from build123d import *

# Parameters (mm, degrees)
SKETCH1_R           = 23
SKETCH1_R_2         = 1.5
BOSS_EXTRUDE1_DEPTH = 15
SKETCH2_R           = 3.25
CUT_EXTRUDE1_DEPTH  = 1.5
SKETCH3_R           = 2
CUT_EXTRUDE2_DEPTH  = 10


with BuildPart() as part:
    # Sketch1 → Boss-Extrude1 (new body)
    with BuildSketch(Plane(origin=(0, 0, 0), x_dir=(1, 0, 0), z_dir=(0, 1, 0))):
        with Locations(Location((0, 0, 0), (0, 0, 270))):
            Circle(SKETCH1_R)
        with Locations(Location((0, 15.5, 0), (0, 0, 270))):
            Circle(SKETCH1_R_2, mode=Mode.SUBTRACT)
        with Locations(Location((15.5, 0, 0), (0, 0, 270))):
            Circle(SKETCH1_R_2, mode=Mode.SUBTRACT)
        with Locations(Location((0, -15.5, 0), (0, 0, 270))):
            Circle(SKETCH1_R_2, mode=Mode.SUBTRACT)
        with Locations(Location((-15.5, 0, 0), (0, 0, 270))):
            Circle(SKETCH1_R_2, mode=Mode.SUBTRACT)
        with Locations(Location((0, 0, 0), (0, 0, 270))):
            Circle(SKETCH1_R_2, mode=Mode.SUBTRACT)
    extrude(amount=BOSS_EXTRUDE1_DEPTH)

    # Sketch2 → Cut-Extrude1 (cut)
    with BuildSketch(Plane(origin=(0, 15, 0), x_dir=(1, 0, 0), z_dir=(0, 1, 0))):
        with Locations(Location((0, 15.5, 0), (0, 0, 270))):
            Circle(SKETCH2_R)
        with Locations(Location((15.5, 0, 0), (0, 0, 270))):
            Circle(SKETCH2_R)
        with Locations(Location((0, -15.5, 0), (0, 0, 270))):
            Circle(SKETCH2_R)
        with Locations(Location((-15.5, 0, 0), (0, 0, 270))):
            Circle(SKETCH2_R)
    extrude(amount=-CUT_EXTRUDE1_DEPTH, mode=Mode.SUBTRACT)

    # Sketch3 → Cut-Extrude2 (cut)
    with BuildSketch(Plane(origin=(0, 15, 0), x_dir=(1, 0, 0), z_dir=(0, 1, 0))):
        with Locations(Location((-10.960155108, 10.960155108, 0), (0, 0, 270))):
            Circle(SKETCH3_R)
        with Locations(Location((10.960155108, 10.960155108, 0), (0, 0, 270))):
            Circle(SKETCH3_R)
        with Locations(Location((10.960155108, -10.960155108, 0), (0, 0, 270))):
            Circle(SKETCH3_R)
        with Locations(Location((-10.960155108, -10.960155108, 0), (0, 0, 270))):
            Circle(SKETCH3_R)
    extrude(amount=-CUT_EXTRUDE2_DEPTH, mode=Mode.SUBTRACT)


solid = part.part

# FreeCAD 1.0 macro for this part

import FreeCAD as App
import Part
import Sketcher

V = App.Vector
Q = App.Units.Quantity

doc = App.newDocument("Part")
params = doc.addObject("Spreadsheet::Sheet", "Params")
for row, (alias, value) in enumerate([
    ("sketch1_diameter", "46 mm"),
    ("sketch1_diameter2", "3 mm"),
    ("pad1_length", "15 mm"),
    ("sketch2_diameter", "6.5 mm"),
    ("pocket1_length", "1.5 mm"),
    ("sketch3_diameter", "4 mm"),
    ("pocket2_length", "10 mm"),
], start=1):
    params.set(f"A{row}", alias)
    params.set(f"B{row}", "=" + value)
    params.setAlias(f"B{row}", alias)

body = doc.addObject("PartDesign::Body", "Body")

sketch1 = body.newObject("Sketcher::SketchObject", "Sketch")
sketch1.AttachmentSupport = (doc.getObject("XZ_Plane"), [""])
sketch1.MapMode = "FlatFace"
sketch1.addGeometry(Part.Circle(V(0, 0, 0), V(0, 0, 1), 23), False)
sketch1.addGeometry(Part.Circle(V(0, -15.5, 0), V(0, 0, 1), 1.5), False)
sketch1.addGeometry(Part.Circle(V(-15.5, 0, 0), V(0, 0, 1), 1.5), False)
sketch1.addGeometry(Part.Circle(V(0, 0, 0), V(0, 0, 1), 1.5), False)
sketch1.addGeometry(Part.Circle(V(15.5, 0, 0), V(0, 0, 1), 1.5), False)
sketch1.addGeometry(Part.Circle(V(0, 15.5, 0), V(0, 0, 1), 1.5), False)
sketch1.addConstraint(Sketcher.Constraint("Coincident", 0, 3, -1, 1))
sketch1.addConstraint(Sketcher.Constraint("Coincident", 3, 3, -1, 1))
sketch1.addConstraint(Sketcher.Constraint("Equal", 1, 2))
sketch1.addConstraint(Sketcher.Constraint("Equal", 2, 3))
sketch1.addConstraint(Sketcher.Constraint("Equal", 3, 4))
sketch1.addConstraint(Sketcher.Constraint("Equal", 4, 5))
sketch1.addConstraint(Sketcher.Constraint("Symmetric", 2, 3, 4, 3, -1, 1))
sketch1.addConstraint(Sketcher.Constraint("Symmetric", 1, 3, 5, 3, -1, 1))
sketch1.addConstraint(Sketcher.Constraint("PointOnObject", 1, 3, -2))
sketch1.addConstraint(Sketcher.Constraint("PointOnObject", 2, 3, -1))
sketch1.addConstraint(Sketcher.Constraint("Diameter", 0, Q("46 mm")))
sketch1.addConstraint(Sketcher.Constraint("Diameter", 1, Q("3 mm")))
sketch1.addConstraint(Sketcher.Constraint("DistanceX", 2, 3, 4, 3, Q("31 mm")))
sketch1.addConstraint(Sketcher.Constraint("DistanceY", 1, 3, 5, 3, Q("31 mm")))
sketch1.setExpression("Constraints[10]", "Params.sketch1_diameter")
sketch1.setExpression("Constraints[11]", "Params.sketch1_diameter2")
pad1 = body.newObject("PartDesign::Pad", "Pad")
pad1.Profile = sketch1
pad1.setExpression("Length", "Params.pad1_length")
pad1.Reversed = True

sketch2 = body.newObject("Sketcher::SketchObject", "Sketch001")
sketch2.AttachmentSupport = (doc.getObject("XZ_Plane"), [""])
sketch2.MapMode = "FlatFace"
sketch2.AttachmentOffset = App.Placement(V(0, 0, -15), App.Rotation())
sketch2.addGeometry(Part.Circle(V(0, -15.5, 0), V(0, 0, 1), 3.2), False)
sketch2.addGeometry(Part.Circle(V(15.5, 0, 0), V(0, 0, 1), 3.2), False)
sketch2.addGeometry(Part.Circle(V(0, 15.5, 0), V(0, 0, 1), 3.2), False)
sketch2.addGeometry(Part.Circle(V(-15.5, 0, 0), V(0, 0, 1), 3.2), False)
sketch2.addConstraint(Sketcher.Constraint("Equal", 0, 1))
sketch2.addConstraint(Sketcher.Constraint("Equal", 1, 2))
sketch2.addConstraint(Sketcher.Constraint("Equal", 2, 3))
sketch2.addConstraint(Sketcher.Constraint("Symmetric", 0, 3, 2, 3, -1, 1))
sketch2.addConstraint(Sketcher.Constraint("Symmetric", 1, 3, 3, 3, -1, 1))
sketch2.addConstraint(Sketcher.Constraint("PointOnObject", 0, 3, -2))
sketch2.addConstraint(Sketcher.Constraint("PointOnObject", 1, 3, -1))
sketch2.addConstraint(Sketcher.Constraint("Diameter", 0, Q("6.5 mm")))
sketch2.addConstraint(Sketcher.Constraint("DistanceY", 0, 3, 2, 3, Q("31 mm")))
sketch2.addConstraint(Sketcher.Constraint("DistanceX", 3, 3, 1, 3, Q("31 mm")))
sketch2.setExpression("Constraints[7]", "Params.sketch2_diameter")
pocket1 = body.newObject("PartDesign::Pocket", "Pocket")
pocket1.Profile = sketch2
pocket1.setExpression("Length", "Params.pocket1_length")
pocket1.Reversed = True

sketch3 = body.newObject("Sketcher::SketchObject", "Sketch002")
sketch3.AttachmentSupport = (doc.getObject("XZ_Plane"), [""])
sketch3.MapMode = "FlatFace"
sketch3.AttachmentOffset = App.Placement(V(0, 0, -15), App.Rotation())
sketch3.addGeometry(Part.Circle(V(-11, -11, 0), V(0, 0, 1), 2), False)
sketch3.addGeometry(Part.Circle(V(11, -11, 0), V(0, 0, 1), 2), False)
sketch3.addGeometry(Part.Circle(V(11, 11, 0), V(0, 0, 1), 2), False)
sketch3.addGeometry(Part.Circle(V(-11, 11, 0), V(0, 0, 1), 2), False)
sketch3.addConstraint(Sketcher.Constraint("Equal", 0, 1))
sketch3.addConstraint(Sketcher.Constraint("Equal", 1, 2))
sketch3.addConstraint(Sketcher.Constraint("Equal", 2, 3))
sketch3.addConstraint(Sketcher.Constraint("Symmetric", 0, 3, 2, 3, -1, 1))
sketch3.addConstraint(Sketcher.Constraint("Symmetric", 1, 3, 3, 3, -1, 1))
sketch3.addConstraint(Sketcher.Constraint("Symmetric", 0, 3, 1, 3, -2))
sketch3.addConstraint(Sketcher.Constraint("Diameter", 0, Q("4 mm")))
sketch3.addConstraint(Sketcher.Constraint("DistanceX", 0, 3, 1, 3, Q("21.92031 mm")))
sketch3.addConstraint(Sketcher.Constraint("DistanceY", 1, 3, 2, 3, Q("21.92031 mm")))
sketch3.setExpression("Constraints[6]", "Params.sketch3_diameter")
pocket2 = body.newObject("PartDesign::Pocket", "Pocket001")
pocket2.Profile = sketch3
pocket2.setExpression("Length", "Params.pocket2_length")
pocket2.Reversed = True

doc.recompute()
